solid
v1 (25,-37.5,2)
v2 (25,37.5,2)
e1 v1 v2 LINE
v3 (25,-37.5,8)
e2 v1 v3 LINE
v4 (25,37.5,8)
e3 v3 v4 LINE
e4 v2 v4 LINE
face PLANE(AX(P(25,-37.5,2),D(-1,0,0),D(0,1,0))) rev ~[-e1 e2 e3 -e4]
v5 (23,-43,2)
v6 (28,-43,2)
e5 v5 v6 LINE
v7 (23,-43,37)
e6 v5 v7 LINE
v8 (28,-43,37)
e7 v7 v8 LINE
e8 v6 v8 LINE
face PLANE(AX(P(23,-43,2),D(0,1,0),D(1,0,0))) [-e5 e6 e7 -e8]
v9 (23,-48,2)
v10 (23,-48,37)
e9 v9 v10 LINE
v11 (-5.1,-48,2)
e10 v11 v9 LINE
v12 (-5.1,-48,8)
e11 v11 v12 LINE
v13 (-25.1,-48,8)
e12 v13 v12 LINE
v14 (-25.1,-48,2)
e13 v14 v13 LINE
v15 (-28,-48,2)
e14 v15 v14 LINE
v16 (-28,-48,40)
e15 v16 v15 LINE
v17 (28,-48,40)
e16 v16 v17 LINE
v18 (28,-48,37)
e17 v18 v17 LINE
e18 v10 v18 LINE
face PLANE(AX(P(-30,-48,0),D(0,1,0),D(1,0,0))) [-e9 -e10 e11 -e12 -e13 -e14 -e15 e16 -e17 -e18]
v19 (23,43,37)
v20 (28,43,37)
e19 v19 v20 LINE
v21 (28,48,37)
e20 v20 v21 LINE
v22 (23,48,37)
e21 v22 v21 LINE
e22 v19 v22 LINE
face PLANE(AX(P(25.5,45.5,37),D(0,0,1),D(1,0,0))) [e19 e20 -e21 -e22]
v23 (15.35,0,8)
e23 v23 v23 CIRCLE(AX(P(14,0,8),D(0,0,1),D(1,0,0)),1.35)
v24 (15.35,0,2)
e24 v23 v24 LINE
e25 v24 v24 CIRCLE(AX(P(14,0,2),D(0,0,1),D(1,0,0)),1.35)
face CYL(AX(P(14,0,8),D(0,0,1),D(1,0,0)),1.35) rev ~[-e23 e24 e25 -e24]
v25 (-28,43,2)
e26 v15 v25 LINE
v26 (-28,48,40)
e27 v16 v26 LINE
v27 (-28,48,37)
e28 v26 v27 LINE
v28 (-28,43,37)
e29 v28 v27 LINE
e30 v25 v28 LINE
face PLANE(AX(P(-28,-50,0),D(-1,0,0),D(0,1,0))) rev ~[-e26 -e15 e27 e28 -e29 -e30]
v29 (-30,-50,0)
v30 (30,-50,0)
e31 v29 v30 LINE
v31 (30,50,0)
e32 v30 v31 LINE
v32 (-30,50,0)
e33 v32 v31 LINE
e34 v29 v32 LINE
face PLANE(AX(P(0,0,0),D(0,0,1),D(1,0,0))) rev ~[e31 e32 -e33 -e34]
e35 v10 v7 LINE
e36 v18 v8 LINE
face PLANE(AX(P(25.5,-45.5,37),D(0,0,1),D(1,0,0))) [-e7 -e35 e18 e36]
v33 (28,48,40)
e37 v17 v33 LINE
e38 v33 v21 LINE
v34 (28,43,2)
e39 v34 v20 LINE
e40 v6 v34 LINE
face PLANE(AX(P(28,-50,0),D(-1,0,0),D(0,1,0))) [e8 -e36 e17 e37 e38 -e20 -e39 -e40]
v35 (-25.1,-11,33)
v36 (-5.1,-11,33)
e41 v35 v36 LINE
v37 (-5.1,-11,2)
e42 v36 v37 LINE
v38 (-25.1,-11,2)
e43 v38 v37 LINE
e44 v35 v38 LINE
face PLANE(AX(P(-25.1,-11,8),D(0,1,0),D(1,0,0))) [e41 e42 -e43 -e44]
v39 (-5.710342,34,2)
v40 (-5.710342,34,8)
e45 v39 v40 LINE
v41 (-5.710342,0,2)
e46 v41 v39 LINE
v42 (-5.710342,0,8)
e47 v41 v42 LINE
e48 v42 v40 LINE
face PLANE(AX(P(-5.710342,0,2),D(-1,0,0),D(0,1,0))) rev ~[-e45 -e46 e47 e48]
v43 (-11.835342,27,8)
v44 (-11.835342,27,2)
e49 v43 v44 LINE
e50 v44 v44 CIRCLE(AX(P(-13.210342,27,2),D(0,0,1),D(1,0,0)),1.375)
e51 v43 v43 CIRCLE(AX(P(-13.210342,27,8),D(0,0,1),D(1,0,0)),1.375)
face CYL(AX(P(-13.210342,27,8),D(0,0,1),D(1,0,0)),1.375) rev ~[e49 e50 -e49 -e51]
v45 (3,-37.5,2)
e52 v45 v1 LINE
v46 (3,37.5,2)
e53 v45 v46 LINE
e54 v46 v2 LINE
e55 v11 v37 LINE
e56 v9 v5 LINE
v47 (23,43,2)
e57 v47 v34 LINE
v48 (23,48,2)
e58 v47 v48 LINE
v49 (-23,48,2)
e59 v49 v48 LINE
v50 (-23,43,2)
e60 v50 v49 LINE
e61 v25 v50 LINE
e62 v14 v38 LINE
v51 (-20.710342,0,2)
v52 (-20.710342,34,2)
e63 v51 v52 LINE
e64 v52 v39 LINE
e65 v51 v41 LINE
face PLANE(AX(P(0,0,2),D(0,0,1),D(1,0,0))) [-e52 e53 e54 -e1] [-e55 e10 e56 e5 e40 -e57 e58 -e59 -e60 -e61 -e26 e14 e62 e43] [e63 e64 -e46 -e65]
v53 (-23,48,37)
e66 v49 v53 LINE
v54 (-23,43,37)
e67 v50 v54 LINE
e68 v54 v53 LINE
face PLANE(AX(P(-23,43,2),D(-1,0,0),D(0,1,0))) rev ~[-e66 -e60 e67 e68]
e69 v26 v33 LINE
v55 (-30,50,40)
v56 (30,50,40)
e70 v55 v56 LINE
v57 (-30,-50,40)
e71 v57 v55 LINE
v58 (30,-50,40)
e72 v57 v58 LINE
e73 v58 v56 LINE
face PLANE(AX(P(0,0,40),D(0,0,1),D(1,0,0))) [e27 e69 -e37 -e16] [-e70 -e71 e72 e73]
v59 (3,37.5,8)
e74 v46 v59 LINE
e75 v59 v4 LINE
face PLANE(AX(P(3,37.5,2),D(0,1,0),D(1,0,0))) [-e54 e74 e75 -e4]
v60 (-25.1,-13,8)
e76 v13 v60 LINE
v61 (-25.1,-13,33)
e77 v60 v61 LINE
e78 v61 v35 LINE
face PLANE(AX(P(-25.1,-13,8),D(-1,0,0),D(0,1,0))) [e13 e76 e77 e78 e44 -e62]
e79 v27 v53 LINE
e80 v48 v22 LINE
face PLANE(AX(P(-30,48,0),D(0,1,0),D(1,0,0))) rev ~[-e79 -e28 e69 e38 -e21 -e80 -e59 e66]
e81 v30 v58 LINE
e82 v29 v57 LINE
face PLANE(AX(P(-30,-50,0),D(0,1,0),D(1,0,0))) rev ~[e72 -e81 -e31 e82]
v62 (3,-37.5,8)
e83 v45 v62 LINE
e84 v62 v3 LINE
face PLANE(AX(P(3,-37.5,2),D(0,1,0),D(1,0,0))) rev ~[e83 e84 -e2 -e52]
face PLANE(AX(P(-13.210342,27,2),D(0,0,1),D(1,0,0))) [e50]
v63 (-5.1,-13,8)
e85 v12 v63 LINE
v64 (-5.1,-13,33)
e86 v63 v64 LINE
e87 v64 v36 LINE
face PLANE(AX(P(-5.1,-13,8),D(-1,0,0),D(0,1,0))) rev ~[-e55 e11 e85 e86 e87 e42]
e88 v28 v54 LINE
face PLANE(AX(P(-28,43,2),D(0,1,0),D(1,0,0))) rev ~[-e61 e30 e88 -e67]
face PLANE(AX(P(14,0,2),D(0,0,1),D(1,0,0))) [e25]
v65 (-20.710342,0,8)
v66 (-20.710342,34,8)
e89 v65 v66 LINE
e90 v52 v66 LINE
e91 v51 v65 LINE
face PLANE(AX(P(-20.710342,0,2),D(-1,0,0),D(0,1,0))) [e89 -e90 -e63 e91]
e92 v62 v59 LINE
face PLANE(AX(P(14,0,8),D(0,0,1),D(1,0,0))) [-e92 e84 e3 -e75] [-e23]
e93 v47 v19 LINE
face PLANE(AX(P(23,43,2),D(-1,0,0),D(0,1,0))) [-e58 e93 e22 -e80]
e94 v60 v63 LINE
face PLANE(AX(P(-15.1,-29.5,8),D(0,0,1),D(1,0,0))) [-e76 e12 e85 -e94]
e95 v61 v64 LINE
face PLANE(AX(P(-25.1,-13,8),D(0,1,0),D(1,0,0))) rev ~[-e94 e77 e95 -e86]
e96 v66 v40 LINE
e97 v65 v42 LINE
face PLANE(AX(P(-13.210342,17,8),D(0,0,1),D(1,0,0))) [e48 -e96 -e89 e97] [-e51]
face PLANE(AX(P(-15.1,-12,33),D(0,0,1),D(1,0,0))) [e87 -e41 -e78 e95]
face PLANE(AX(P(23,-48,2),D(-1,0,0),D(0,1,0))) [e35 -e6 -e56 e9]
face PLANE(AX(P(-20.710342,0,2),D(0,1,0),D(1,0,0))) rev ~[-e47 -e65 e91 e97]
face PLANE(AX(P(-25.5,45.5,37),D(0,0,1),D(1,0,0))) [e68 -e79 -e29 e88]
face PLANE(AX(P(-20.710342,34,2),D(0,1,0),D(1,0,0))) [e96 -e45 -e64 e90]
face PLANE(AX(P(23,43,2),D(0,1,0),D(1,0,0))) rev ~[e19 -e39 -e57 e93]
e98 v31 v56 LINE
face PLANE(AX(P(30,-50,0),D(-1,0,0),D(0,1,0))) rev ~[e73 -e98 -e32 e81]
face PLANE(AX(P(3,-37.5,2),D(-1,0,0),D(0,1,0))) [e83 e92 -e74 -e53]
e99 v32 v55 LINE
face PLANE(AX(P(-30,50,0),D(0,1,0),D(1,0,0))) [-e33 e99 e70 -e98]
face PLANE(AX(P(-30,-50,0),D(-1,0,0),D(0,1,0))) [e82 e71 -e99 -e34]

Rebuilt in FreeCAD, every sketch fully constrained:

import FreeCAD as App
import Part
import Sketcher


def faces_at(feature, points):
    """Names of the faces that lie closest to the given points."""
    faces = feature.Shape.Faces
    near = lambda p: min(range(len(faces)), key=lambda i: faces[i].distToShape(Part.Vertex(*p))[0])
    return sorted({f"Face{near(p) + 1}" for p in points})

doc = App.newDocument("Part")
body = doc.addObject("PartDesign::Body", "Body")

sketch1 = body.newObject("Sketcher::SketchObject", "Sketch")
sketch1.AttachmentSupport = (doc.getObject("XY_Plane"), [""])
sketch1.MapMode = "FlatFace"
sketch1.addGeometry(Part.LineSegment(App.Vector(-30, 50, 0), App.Vector(-30, -50, 0)), False)
sketch1.addGeometry(Part.LineSegment(App.Vector(-30, -50, 0), App.Vector(30, -50, 0)), False)
sketch1.addGeometry(Part.LineSegment(App.Vector(30, -50, 0), App.Vector(30, 50, 0)), False)
sketch1.addGeometry(Part.LineSegment(App.Vector(30, 50, 0), App.Vector(-30, 50, 0)), False)
sketch1.addConstraint(Sketcher.Constraint("Coincident", 0, 2, 1, 1))
sketch1.addConstraint(Sketcher.Constraint("Coincident", 1, 2, 2, 1))
sketch1.addConstraint(Sketcher.Constraint("Coincident", 2, 2, 3, 1))
sketch1.addConstraint(Sketcher.Constraint("Coincident", 3, 2, 0, 1))
sketch1.addConstraint(Sketcher.Constraint("Vertical", 0))
sketch1.addConstraint(Sketcher.Constraint("Horizontal", 1))
sketch1.addConstraint(Sketcher.Constraint("Vertical", 2))
sketch1.addConstraint(Sketcher.Constraint("Horizontal", 3))
sketch1.addConstraint(Sketcher.Constraint("Symmetric", 0, 2, 2, 2, -1, 1))
sketch1.addConstraint(Sketcher.Constraint("DistanceX", 1, 1, 1, 2, 60.0))
sketch1.addConstraint(Sketcher.Constraint("DistanceY", 0, 2, 0, 1, 100.0))
pad1 = body.newObject("PartDesign::Pad", "Pad")
pad1.Profile = sketch1
pad1.Length = 40
doc.recompute()

thickness = body.newObject("PartDesign::Thickness", "Thickness")
thickness.Base = (pad1, faces_at(pad1, [(0, 0, 40)]))
thickness.Value = 2
thickness.Reversed = True
thickness.Join = "Arc"

sketch2 = body.newObject("Sketcher::SketchObject", "Sketch001")
sketch2.AttachmentSupport = (doc.getObject("XY_Plane"), [""])
sketch2.MapMode = "FlatFace"
sketch2.AttachmentOffset = App.Placement(App.Vector(0, 0, 2), App.Rotation())
sketch2.addGeometry(Part.LineSegment(App.Vector(3, 38, 0), App.Vector(3, -38, 0)), False)
sketch2.addGeometry(Part.LineSegment(App.Vector(3, -38, 0), App.Vector(25, -38, 0)), False)
sketch2.addGeometry(Part.LineSegment(App.Vector(25, -38, 0), App.Vector(25, 38, 0)), False)
sketch2.addGeometry(Part.LineSegment(App.Vector(25, 38, 0), App.Vector(3, 38, 0)), False)
sketch2.addConstraint(Sketcher.Constraint("Coincident", 0, 2, 1, 1))
sketch2.addConstraint(Sketcher.Constraint("Coincident", 1, 2, 2, 1))
sketch2.addConstraint(Sketcher.Constraint("Coincident", 2, 2, 3, 1))
sketch2.addConstraint(Sketcher.Constraint("Coincident", 3, 2, 0, 1))
sketch2.addConstraint(Sketcher.Constraint("Vertical", 0))
sketch2.addConstraint(Sketcher.Constraint("Horizontal", 1))
sketch2.addConstraint(Sketcher.Constraint("Vertical", 2))
sketch2.addConstraint(Sketcher.Constraint("Horizontal", 3))
sketch2.addConstraint(Sketcher.Constraint("DistanceX", 1, 1, 1, 2, 22.0))
sketch2.addConstraint(Sketcher.Constraint("DistanceY", 0, 2, 0, 1, 75.0))
sketch2.addConstraint(Sketcher.Constraint("DistanceX", -1, 1, 0, 2, 3.0))
sketch2.addConstraint(Sketcher.Constraint("DistanceY", 0, 2, -1, 1, 37.5))
pad2 = body.newObject("PartDesign::Pad", "Pad001")
pad2.Profile = sketch2
pad2.Length = 6

sketch3 = body.newObject("Sketcher::SketchObject", "Sketch002")
sketch3.AttachmentSupport = (doc.getObject("XY_Plane"), [""])
sketch3.MapMode = "FlatFace"
sketch3.AttachmentOffset = App.Placement(App.Vector(0, 0, 8), App.Rotation())
sketch3.addGeometry(Part.Circle(App.Vector(14, 0, 0), App.Vector(0, 0, 1), 1.4), False)
sketch3.addConstraint(Sketcher.Constraint("PointOnObject", 0, 3, -1))
sketch3.addConstraint(Sketcher.Constraint("Diameter", 0, 2.7))
sketch3.addConstraint(Sketcher.Constraint("DistanceX", -1, 1, 0, 3, 14.0))
pocket1 = body.newObject("PartDesign::Pocket", "Pocket")
pocket1.Profile = sketch3
pocket1.Length = 6

sketch4 = body.newObject("Sketcher::SketchObject", "Sketch003")
sketch4.AttachmentSupport = (doc.getObject("XY_Plane"), [""])
sketch4.MapMode = "FlatFace"
sketch4.AttachmentOffset = App.Placement(App.Vector(0, 0, 2), App.Rotation())
sketch4.addGeometry(Part.LineSegment(App.Vector(-25, -11, 0), App.Vector(-25, -48, 0)), False)
sketch4.addGeometry(Part.LineSegment(App.Vector(-25, -48, 0), App.Vector(-5, -48, 0)), False)
sketch4.addGeometry(Part.LineSegment(App.Vector(-5, -48, 0), App.Vector(-5, -11, 0)), False)
sketch4.addGeometry(Part.LineSegment(App.Vector(-5, -11, 0), App.Vector(-25, -11, 0)), False)
sketch4.addConstraint(Sketcher.Constraint("Coincident", 0, 2, 1, 1))
sketch4.addConstraint(Sketcher.Constraint("Coincident", 1, 2, 2, 1))
sketch4.addConstraint(Sketcher.Constraint("Coincident", 2, 2, 3, 1))
sketch4.addConstraint(Sketcher.Constraint("Coincident", 3, 2, 0, 1))
sketch4.addConstraint(Sketcher.Constraint("Vertical", 0))
sketch4.addConstraint(Sketcher.Constraint("Horizontal", 1))
sketch4.addConstraint(Sketcher.Constraint("Vertical", 2))
sketch4.addConstraint(Sketcher.Constraint("Horizontal", 3))
sketch4.addConstraint(Sketcher.Constraint("DistanceX", 1, 1, 1, 2, 20.0))
sketch4.addConstraint(Sketcher.Constraint("DistanceY", 0, 2, 0, 1, 37.0))
sketch4.addConstraint(Sketcher.Constraint("DistanceY", 0, 2, -1, 1, 48.0))
sketch4.addConstraint(Sketcher.Constraint("DistanceX", 0, 2, -1, 1, 25.1))
pad3 = body.newObject("PartDesign::Pad", "Pad002")
pad3.Profile = sketch4
pad3.Length = 6

sketch5 = body.newObject("Sketcher::SketchObject", "Sketch004")
sketch5.AttachmentSupport = (doc.getObject("XY_Plane"), [""])
sketch5.MapMode = "FlatFace"
sketch5.AttachmentOffset = App.Placement(App.Vector(0, 0, 8), App.Rotation())
sketch5.addGeometry(Part.LineSegment(App.Vector(-25.1, -11, 0), App.Vector(-25.1, -13, 0)), False)
sketch5.addGeometry(Part.LineSegment(App.Vector(-25.1, -13, 0), App.Vector(-5.1, -13, 0)), False)
sketch5.addGeometry(Part.LineSegment(App.Vector(-5.1, -13, 0), App.Vector(-5.1, -11, 0)), False)
sketch5.addGeometry(Part.LineSegment(App.Vector(-5.1, -11, 0), App.Vector(-25.1, -11, 0)), False)
sketch5.addConstraint(Sketcher.Constraint("Coincident", 0, 2, 1, 1))
sketch5.addConstraint(Sketcher.Constraint("Coincident", 1, 2, 2, 1))
sketch5.addConstraint(Sketcher.Constraint("Coincident", 2, 2, 3, 1))
sketch5.addConstraint(Sketcher.Constraint("Coincident", 3, 2, 0, 1))
sketch5.addConstraint(Sketcher.Constraint("Vertical", 0))
sketch5.addConstraint(Sketcher.Constraint("Horizontal", 1))
sketch5.addConstraint(Sketcher.Constraint("Vertical", 2))
sketch5.addConstraint(Sketcher.Constraint("Horizontal", 3))
sketch5.addConstraint(Sketcher.Constraint("DistanceX", 1, 1, 1, 2, 20.0))
sketch5.addConstraint(Sketcher.Constraint("DistanceY", 0, 2, 0, 1, 2.0))
sketch5.addConstraint(Sketcher.Constraint("DistanceY", 0, 2, -1, 1, 13.0))
sketch5.addConstraint(Sketcher.Constraint("DistanceX", 0, 2, -1, 1, 25.1))
pad4 = body.newObject("PartDesign::Pad", "Pad003")
pad4.Profile = sketch5
pad4.Length = 25

sketch6 = body.newObject("Sketcher::SketchObject", "Sketch005")
sketch6.AttachmentSupport = (doc.getObject("XY_Plane"), [""])
sketch6.MapMode = "FlatFace"
sketch6.AttachmentOffset = App.Placement(App.Vector(0, 0, 2), App.Rotation())
sketch6.addGeometry(Part.LineSegment(App.Vector(-21, 34, 0), App.Vector(-21, 0, 0)), False)
sketch6.addGeometry(Part.LineSegment(App.Vector(-21, 0, 0), App.Vector(-6, 0, 0)), False)
sketch6.addGeometry(Part.LineSegment(App.Vector(-6, 0, 0), App.Vector(-6, 34, 0)), False)
sketch6.addGeometry(Part.LineSegment(App.Vector(-6, 34, 0), App.Vector(-21, 34, 0)), False)
sketch6.addConstraint(Sketcher.Constraint("Coincident", 0, 2, 1, 1))
sketch6.addConstraint(Sketcher.Constraint("Coincident", 1, 2, 2, 1))
sketch6.addConstraint(Sketcher.Constraint("Coincident", 2, 2, 3, 1))
sketch6.addConstraint(Sketcher.Constraint("Coincident", 3, 2, 0, 1))
sketch6.addConstraint(Sketcher.Constraint("Vertical", 0))
sketch6.addConstraint(Sketcher.Constraint("Horizontal", 1))
sketch6.addConstraint(Sketcher.Constraint("Vertical", 2))
sketch6.addConstraint(Sketcher.Constraint("Horizontal", 3))
sketch6.addConstraint(Sketcher.Constraint("PointOnObject", 0, 2, -1))
sketch6.addConstraint(Sketcher.Constraint("DistanceX", 1, 1, 1, 2, 15.0))
sketch6.addConstraint(Sketcher.Constraint("DistanceY", 0, 2, 0, 1, 34.0))
sketch6.addConstraint(Sketcher.Constraint("DistanceX", 1, 2, -1, 1, 5.710342))
pad5 = body.newObject("PartDesign::Pad", "Pad004")
pad5.Profile = sketch6
pad5.Length = 6

sketch7 = body.newObject("Sketcher::SketchObject", "Sketch006")
sketch7.AttachmentSupport = (doc.getObject("XY_Plane"), [""])
sketch7.MapMode = "FlatFace"
sketch7.AttachmentOffset = App.Placement(App.Vector(0, 0, 8), App.Rotation())
sketch7.addGeometry(Part.Circle(App.Vector(-13.2, 27, 0), App.Vector(0, 0, 1), 1.4), False)
sketch7.addConstraint(Sketcher.Constraint("Diameter", 0, 2.75))
sketch7.addConstraint(Sketcher.Constraint("DistanceY", -1, 1, 0, 3, 27.0))
sketch7.addConstraint(Sketcher.Constraint("DistanceX", 0, 3, -1, 1, 13.210342))
pocket2 = body.newObject("PartDesign::Pocket", "Pocket001")
pocket2.Profile = sketch7
pocket2.Length = 6

sketch8 = body.newObject("Sketcher::SketchObject", "Sketch007")
sketch8.AttachmentSupport = (doc.getObject("XY_Plane"), [""])
sketch8.MapMode = "FlatFace"
sketch8.AttachmentOffset = App.Placement(App.Vector(0, 0, 2), App.Rotation())
sketch8.addGeometry(Part.LineSegment(App.Vector(-28, 48, 0), App.Vector(-28, 43, 0)), False)
sketch8.addGeometry(Part.LineSegment(App.Vector(-28, 43, 0), App.Vector(-23, 43, 0)), False)
sketch8.addGeometry(Part.LineSegment(App.Vector(-23, 43, 0), App.Vector(-23, 48, 0)), False)
sketch8.addGeometry(Part.LineSegment(App.Vector(-23, 48, 0), App.Vector(-28, 48, 0)), False)
sketch8.addGeometry(Part.LineSegment(App.Vector(23, 48, 0), App.Vector(23, 43, 0)), False)
sketch8.addGeometry(Part.LineSegment(App.Vector(23, 43, 0), App.Vector(28, 43, 0)), False)
sketch8.addGeometry(Part.LineSegment(App.Vector(28, 43, 0), App.Vector(28, 48, 0)), False)
sketch8.addGeometry(Part.LineSegment(App.Vector(28, 48, 0), App.Vector(23, 48, 0)), False)
sketch8.addGeometry(Part.LineSegment(App.Vector(23, -43, 0), App.Vector(23, -48, 0)), False)
sketch8.addGeometry(Part.LineSegment(App.Vector(23, -48, 0), App.Vector(28, -48, 0)), False)
sketch8.addGeometry(Part.LineSegment(App.Vector(28, -48, 0), App.Vector(28, -43, 0)), False)
sketch8.addGeometry(Part.LineSegment(App.Vector(28, -43, 0), App.Vector(23, -43, 0)), False)
sketch8.addConstraint(Sketcher.Constraint("Coincident", 0, 2, 1, 1))
sketch8.addConstraint(Sketcher.Constraint("Coincident", 1, 2, 2, 1))
sketch8.addConstraint(Sketcher.Constraint("Coincident", 2, 2, 3, 1))
sketch8.addConstraint(Sketcher.Constraint("Coincident", 3, 2, 0, 1))
sketch8.addConstraint(Sketcher.Constraint("Coincident", 4, 2, 5, 1))
sketch8.addConstraint(Sketcher.Constraint("Coincident", 5, 2, 6, 1))
sketch8.addConstraint(Sketcher.Constraint("Coincident", 6, 2, 7, 1))
sketch8.addConstraint(Sketcher.Constraint("Coincident", 7, 2, 4, 1))
sketch8.addConstraint(Sketcher.Constraint("Coincident", 8, 2, 9, 1))
sketch8.addConstraint(Sketcher.Constraint("Coincident", 9, 2, 10, 1))
sketch8.addConstraint(Sketcher.Constraint("Coincident", 10, 2, 11, 1))
sketch8.addConstraint(Sketcher.Constraint("Coincident", 11, 2, 8, 1))
sketch8.addConstraint(Sketcher.Constraint("Vertical", 0))
sketch8.addConstraint(Sketcher.Constraint("Horizontal", 1))
sketch8.addConstraint(Sketcher.Constraint("Vertical", 2))
sketch8.addConstraint(Sketcher.Constraint("Horizontal", 3))
sketch8.addConstraint(Sketcher.Constraint("Vertical", 4))
sketch8.addConstraint(Sketcher.Constraint("Horizontal", 5))
sketch8.addConstraint(Sketcher.Constraint("Vertical", 6))
sketch8.addConstraint(Sketcher.Constraint("Horizontal", 7))
sketch8.addConstraint(Sketcher.Constraint("Vertical", 8))
sketch8.addConstraint(Sketcher.Constraint("Horizontal", 9))
sketch8.addConstraint(Sketcher.Constraint("Vertical", 10))
sketch8.addConstraint(Sketcher.Constraint("Horizontal", 11))
sketch8.addConstraint(Sketcher.Constraint("Symmetric", 2, 2, 8, 2, -1, 1))
sketch8.addConstraint(Sketcher.Constraint("Symmetric", 0, 2, 10, 2, -1, 1))
sketch8.addConstraint(Sketcher.Constraint("Symmetric", 1, 2, 4, 2, -2))
sketch8.addConstraint(Sketcher.Constraint("Symmetric", 3, 2, 6, 2, -2))
sketch8.addConstraint(Sketcher.Constraint("Equal", 11, 0))
sketch8.addConstraint(Sketcher.Constraint("DistanceX", 1, 1, 1, 2, 5.0))
sketch8.addConstraint(Sketcher.Constraint("DistanceX", 0, 2, -1, 1, 28.0))
sketch8.addConstraint(Sketcher.Constraint("DistanceY", -1, 1, 0, 2, 43.0))
pad6 = body.newObject("PartDesign::Pad", "Pad005")
pad6.Profile = sketch8
pad6.Length = 35

doc.recompute()
